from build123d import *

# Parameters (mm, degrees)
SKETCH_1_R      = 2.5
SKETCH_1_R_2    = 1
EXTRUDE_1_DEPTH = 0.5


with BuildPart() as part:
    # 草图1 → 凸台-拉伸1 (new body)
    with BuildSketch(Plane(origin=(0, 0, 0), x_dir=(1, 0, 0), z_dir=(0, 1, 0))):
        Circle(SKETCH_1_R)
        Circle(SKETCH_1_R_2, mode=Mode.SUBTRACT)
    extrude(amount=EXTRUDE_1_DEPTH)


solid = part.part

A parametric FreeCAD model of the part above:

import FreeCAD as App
import Part
import Sketcher
from FreeCAD import Vector
Q = App.Units.Quantity

doc = App.newDocument("Part")
body = doc.addObject("PartDesign::Body", "Body")

sketch1 = body.newObject("Sketcher::SketchObject", "Sketch")
sketch1.AttachmentSupport = (doc.getObject("XZ_Plane"), [""])
sketch1.MapMode = "FlatFace"
sketch1.addGeometry([
    Part.Circle(Vector(0, 0, 0), Vector(0, 0, 1), 2.5),
    Part.Circle(Vector(0, 0, 0), Vector(0, 0, 1), 1),
], False)
sketch1.addConstraint([
    Sketcher.Constraint("Coincident", 0, 3, -1, 1),
    Sketcher.Constraint("Coincident", 1, 3, -1, 1),
    Sketcher.Constraint("Diameter", 0, Q("5 mm")),
    Sketcher.Constraint("Diameter", 1, Q("2 mm")),
])
pad1 = body.newObject("PartDesign::Pad", "Pad")
pad1.Profile = sketch1
pad1.Length = 0.5
pad1.Reversed = True

doc.recompute()
